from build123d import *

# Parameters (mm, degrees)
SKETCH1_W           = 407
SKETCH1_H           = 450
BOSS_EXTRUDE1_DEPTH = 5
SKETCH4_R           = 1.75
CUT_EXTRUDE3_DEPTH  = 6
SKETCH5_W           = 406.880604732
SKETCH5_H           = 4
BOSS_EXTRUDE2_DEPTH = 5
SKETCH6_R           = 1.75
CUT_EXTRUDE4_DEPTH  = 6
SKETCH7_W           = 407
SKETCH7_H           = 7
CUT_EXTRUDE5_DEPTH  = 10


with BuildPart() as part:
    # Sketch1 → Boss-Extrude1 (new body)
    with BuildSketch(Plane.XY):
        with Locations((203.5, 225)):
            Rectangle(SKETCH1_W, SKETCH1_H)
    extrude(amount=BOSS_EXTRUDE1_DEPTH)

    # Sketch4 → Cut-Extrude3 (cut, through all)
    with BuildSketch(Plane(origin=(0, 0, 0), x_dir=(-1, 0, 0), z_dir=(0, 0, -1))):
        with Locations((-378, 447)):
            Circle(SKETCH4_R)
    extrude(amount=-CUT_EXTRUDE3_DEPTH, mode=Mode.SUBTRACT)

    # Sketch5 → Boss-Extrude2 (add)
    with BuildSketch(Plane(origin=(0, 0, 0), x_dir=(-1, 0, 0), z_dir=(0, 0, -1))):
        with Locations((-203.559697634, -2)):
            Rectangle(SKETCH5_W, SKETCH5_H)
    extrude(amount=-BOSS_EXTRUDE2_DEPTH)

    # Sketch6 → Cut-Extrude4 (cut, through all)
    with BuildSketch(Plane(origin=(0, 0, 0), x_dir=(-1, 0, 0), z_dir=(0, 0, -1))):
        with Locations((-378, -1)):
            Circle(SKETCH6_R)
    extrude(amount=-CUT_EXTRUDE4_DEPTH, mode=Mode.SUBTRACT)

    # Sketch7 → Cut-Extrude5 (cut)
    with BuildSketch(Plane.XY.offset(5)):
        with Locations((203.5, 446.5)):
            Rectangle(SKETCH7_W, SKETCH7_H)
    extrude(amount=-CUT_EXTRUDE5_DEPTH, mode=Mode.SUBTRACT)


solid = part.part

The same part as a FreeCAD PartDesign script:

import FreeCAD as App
import Part
import Sketcher

doc = App.newDocument("Part")
body = doc.addObject("PartDesign::Body", "Body")

sketch1 = body.newObject("Sketcher::SketchObject", "Sketch")
sketch1.AttachmentSupport = (doc.getObject("XY_Plane"), [""])
sketch1.MapMode = "FlatFace"
sketch1.addGeometry([
    Part.LineSegment(App.Vector(0, 450, 0), App.Vector(0, 0, 0)),
    Part.LineSegment(App.Vector(0, 0, 0), App.Vector(407, 0, 0)),
    Part.LineSegment(App.Vector(407, 0, 0), App.Vector(407, 450, 0)),
    Part.LineSegment(App.Vector(407, 450, 0), App.Vector(0, 450, 0)),
], False)
sketch1.addConstraint([
    Sketcher.Constraint("Coincident", 0, 2, 1, 1),
    Sketcher.Constraint("Coincident", 1, 2, 2, 1),
    Sketcher.Constraint("Coincident", 2, 2, 3, 1),
    Sketcher.Constraint("Coincident", 3, 2, 0, 1),
    Sketcher.Constraint("Vertical", 0),
    Sketcher.Constraint("Horizontal", 1),
    Sketcher.Constraint("Vertical", 2),
    Sketcher.Constraint("Horizontal", 3),
    Sketcher.Constraint("Coincident", 0, 2, -1, 1),
    Sketcher.Constraint("DistanceX", 1, 1, 1, 2, 407.0),
    Sketcher.Constraint("DistanceY", 0, 2, 0, 1, 450.0),
])
pad1 = body.newObject("PartDesign::Pad", "Pad")
pad1.Profile = sketch1
pad1.Length = 5

sketch2 = body.newObject("Sketcher::SketchObject", "Sketch001")
sketch2.AttachmentSupport = (doc.getObject("XY_Plane"), [""])
sketch2.MapMode = "FlatFace"
sketch2.addGeometry(Part.Circle(App.Vector(378, 447, 0), App.Vector(0, 0, 1), 1.75), False)
sketch2.addConstraint([
    Sketcher.Constraint("Diameter", 0, 3.5),
    Sketcher.Constraint("DistanceX", -1, 1, 0, 3, 378.0),
    Sketcher.Constraint("DistanceY", -1, 1, 0, 3, 447.0),
])
pocket1 = body.newObject("PartDesign::Pocket", "Pocket")
pocket1.Profile = sketch2
pocket1.Type = "ThroughAll"
pocket1.Reversed = True

sketch3 = body.newObject("Sketcher::SketchObject", "Sketch002")
sketch3.AttachmentSupport = (doc.getObject("XY_Plane"), [""])
sketch3.MapMode = "FlatFace"
sketch3.addGeometry([
    Part.LineSegment(App.Vector(407, 0, 0), App.Vector(407, -4, 0)),
    Part.LineSegment(App.Vector(407, -4, 0), App.Vector(0.119395, -4, 0)),
    Part.LineSegment(App.Vector(0.119395, -4, 0), App.Vector(0.119395, 0, 0)),
    Part.LineSegment(App.Vector(0.119395, 0, 0), App.Vector(407, 0, 0)),
], False)
sketch3.addConstraint([
    Sketcher.Constraint("Coincident", 0, 2, 1, 1),
    Sketcher.Constraint("Coincident", 1, 2, 2, 1),
    Sketcher.Constraint("Coincident", 2, 2, 3, 1),
    Sketcher.Constraint("Coincident", 3, 2, 0, 1),
    Sketcher.Constraint("Vertical", 0),
    Sketcher.Constraint("Horizontal", 1),
    Sketcher.Constraint("Vertical", 2),
    Sketcher.Constraint("Horizontal", 3),
    Sketcher.Constraint("PointOnObject", 2, 2, -1),
    Sketcher.Constraint("DistanceY", 0, 2, 0, 1, 4.0),
    Sketcher.Constraint("DistanceX", -1, 1, 0, 2, 407.0),
    Sketcher.Constraint("DistanceX", 1, 2, 1, 1, 406.880605),
])
pad2 = body.newObject("PartDesign::Pad", "Pad001")
pad2.Profile = sketch3
pad2.Length = 5

sketch4 = body.newObject("Sketcher::SketchObject", "Sketch003")
sketch4.AttachmentSupport = (doc.getObject("XY_Plane"), [""])
sketch4.MapMode = "FlatFace"
sketch4.addGeometry(Part.Circle(App.Vector(378, -1, 0), App.Vector(0, 0, 1), 1.75), False)
sketch4.addConstraint([
    Sketcher.Constraint("Diameter", 0, 3.5),
    Sketcher.Constraint("DistanceX", -1, 1, 0, 3, 378.0),
    Sketcher.Constraint("DistanceY", 0, 3, -1, 1, 1.0),
])
pocket2 = body.newObject("PartDesign::Pocket", "Pocket001")
pocket2.Profile = sketch4
pocket2.Type = "ThroughAll"
pocket2.Reversed = True

sketch5 = body.newObject("Sketcher::SketchObject", "Sketch004")
sketch5.AttachmentSupport = (doc.getObject("XY_Plane"), [""])
sketch5.MapMode = "FlatFace"
sketch5.AttachmentOffset = App.Placement(App.Vector(0, 0, 5), App.Rotation())
sketch5.addGeometry([
    Part.LineSegment(App.Vector(0, 450, 0), App.Vector(0, 443, 0)),
    Part.LineSegment(App.Vector(0, 443, 0), App.Vector(407, 443, 0)),
    Part.LineSegment(App.Vector(407, 443, 0), App.Vector(407, 450, 0)),
    Part.LineSegment(App.Vector(407, 450, 0), App.Vector(0, 450, 0)),
], False)
sketch5.addConstraint([
    Sketcher.Constraint("Coincident", 0, 2, 1, 1),
    Sketcher.Constraint("Coincident", 1, 2, 2, 1),
    Sketcher.Constraint("Coincident", 2, 2, 3, 1),
    Sketcher.Constraint("Coincident", 3, 2, 0, 1),
    Sketcher.Constraint("Vertical", 0),
    Sketcher.Constraint("Horizontal", 1),
    Sketcher.Constraint("Vertical", 2),
    Sketcher.Constraint("Horizontal", 3),
    Sketcher.Constraint("PointOnObject", 0, 2, -2),
    Sketcher.Constraint("DistanceX", 1, 1, 1, 2, 407.0),
    Sketcher.Constraint("DistanceY", 0, 2, 0, 1, 7.0),
    Sketcher.Constraint("DistanceY", -1, 1, 0, 2, 443.0),
])
pocket3 = body.newObject("PartDesign::Pocket", "Pocket002")
pocket3.Profile = sketch5
pocket3.Length = 10

doc.recompute()
